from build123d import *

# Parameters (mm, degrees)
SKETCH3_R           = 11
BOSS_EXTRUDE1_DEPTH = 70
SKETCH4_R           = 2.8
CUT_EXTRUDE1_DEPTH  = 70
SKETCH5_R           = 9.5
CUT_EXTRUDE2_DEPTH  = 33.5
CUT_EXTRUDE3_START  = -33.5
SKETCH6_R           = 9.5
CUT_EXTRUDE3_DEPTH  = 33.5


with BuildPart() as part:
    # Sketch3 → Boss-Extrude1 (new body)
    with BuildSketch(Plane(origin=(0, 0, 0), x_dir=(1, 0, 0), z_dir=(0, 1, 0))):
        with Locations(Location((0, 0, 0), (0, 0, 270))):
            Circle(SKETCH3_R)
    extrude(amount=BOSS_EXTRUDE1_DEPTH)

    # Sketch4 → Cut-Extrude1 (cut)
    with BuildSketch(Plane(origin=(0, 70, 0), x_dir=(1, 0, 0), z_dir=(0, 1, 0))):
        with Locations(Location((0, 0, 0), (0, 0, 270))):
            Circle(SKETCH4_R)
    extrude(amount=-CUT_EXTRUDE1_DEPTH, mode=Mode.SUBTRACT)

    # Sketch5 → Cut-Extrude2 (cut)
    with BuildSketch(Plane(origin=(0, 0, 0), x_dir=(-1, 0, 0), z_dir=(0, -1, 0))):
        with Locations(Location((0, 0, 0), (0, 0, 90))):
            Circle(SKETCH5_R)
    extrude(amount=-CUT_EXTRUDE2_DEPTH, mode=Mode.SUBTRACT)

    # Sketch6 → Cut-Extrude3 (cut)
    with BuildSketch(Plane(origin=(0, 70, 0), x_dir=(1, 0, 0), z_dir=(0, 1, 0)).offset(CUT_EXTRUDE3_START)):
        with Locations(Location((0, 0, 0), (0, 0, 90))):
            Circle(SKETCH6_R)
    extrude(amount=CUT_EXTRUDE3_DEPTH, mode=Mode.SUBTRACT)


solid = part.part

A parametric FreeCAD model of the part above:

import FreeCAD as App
import Part
import Sketcher

V = App.Vector

doc = App.newDocument("Part")
body = doc.addObject("PartDesign::Body", "Body")

# Sketch on XZ plane
sketch1 = body.newObject("Sketcher::SketchObject", "Sketch")
sketch1.AttachmentSupport = (doc.getObject("XZ_Plane"), [""])
sketch1.MapMode = "FlatFace"
sketch1.addGeometry(Part.Circle(V(0, 0, 0), V(0, 0, 1), 11), False)
sketch1.addConstraint([
    Sketcher.Constraint("Coincident", 0, 3, -1, 1),
    Sketcher.Constraint("Diameter", 0, 22.0),
])
pad1 = body.newObject("PartDesign::Pad", "Pad")
pad1.Profile = sketch1
pad1.Length = 70
pad1.Reversed = True

# Sketch on XZ plane
sketch2 = body.newObject("Sketcher::SketchObject", "Sketch001")
sketch2.AttachmentSupport = (doc.getObject("XZ_Plane"), [""])
sketch2.MapMode = "FlatFace"
sketch2.AttachmentOffset = App.Placement(V(0, 0, -70), App.Rotation())
sketch2.addGeometry(Part.Circle(V(0, 0, 0), V(0, 0, 1), 2.8), False)
sketch2.addConstraint([
    Sketcher.Constraint("Coincident", 0, 3, -1, 1),
    Sketcher.Constraint("Diameter", 0, 5.6),
])
pocket1 = body.newObject("PartDesign::Pocket", "Pocket")
pocket1.Profile = sketch2
pocket1.Length = 70
pocket1.Reversed = True

# Sketch on XZ plane
sketch3 = body.newObject("Sketcher::SketchObject", "Sketch002")
sketch3.AttachmentSupport = (doc.getObject("XZ_Plane"), [""])
sketch3.MapMode = "FlatFace"
sketch3.addGeometry(Part.Circle(V(0, 0, 0), V(0, 0, 1), 10), False)
sketch3.addConstraint([
    Sketcher.Constraint("Coincident", 0, 3, -1, 1),
    Sketcher.Constraint("Diameter", 0, 19.0),
])
pocket2 = body.newObject("PartDesign::Pocket", "Pocket001")
pocket2.Profile = sketch3
pocket2.Length = 33.5

# Sketch on XZ plane
sketch4 = body.newObject("Sketcher::SketchObject", "Sketch003")
sketch4.AttachmentSupport = (doc.getObject("XZ_Plane"), [""])
sketch4.MapMode = "FlatFace"
sketch4.AttachmentOffset = App.Placement(V(0, 0, -36.5), App.Rotation())
sketch4.addGeometry(Part.Circle(V(0, 0, 0), V(0, 0, 1), 10), False)
sketch4.addConstraint([
    Sketcher.Constraint("Coincident", 0, 3, -1, 1),
    Sketcher.Constraint("Diameter", 0, 19.0),
])
pocket3 = body.newObject("PartDesign::Pocket", "Pocket002")
pocket3.Profile = sketch4
pocket3.Length = 33.5

doc.recompute()
